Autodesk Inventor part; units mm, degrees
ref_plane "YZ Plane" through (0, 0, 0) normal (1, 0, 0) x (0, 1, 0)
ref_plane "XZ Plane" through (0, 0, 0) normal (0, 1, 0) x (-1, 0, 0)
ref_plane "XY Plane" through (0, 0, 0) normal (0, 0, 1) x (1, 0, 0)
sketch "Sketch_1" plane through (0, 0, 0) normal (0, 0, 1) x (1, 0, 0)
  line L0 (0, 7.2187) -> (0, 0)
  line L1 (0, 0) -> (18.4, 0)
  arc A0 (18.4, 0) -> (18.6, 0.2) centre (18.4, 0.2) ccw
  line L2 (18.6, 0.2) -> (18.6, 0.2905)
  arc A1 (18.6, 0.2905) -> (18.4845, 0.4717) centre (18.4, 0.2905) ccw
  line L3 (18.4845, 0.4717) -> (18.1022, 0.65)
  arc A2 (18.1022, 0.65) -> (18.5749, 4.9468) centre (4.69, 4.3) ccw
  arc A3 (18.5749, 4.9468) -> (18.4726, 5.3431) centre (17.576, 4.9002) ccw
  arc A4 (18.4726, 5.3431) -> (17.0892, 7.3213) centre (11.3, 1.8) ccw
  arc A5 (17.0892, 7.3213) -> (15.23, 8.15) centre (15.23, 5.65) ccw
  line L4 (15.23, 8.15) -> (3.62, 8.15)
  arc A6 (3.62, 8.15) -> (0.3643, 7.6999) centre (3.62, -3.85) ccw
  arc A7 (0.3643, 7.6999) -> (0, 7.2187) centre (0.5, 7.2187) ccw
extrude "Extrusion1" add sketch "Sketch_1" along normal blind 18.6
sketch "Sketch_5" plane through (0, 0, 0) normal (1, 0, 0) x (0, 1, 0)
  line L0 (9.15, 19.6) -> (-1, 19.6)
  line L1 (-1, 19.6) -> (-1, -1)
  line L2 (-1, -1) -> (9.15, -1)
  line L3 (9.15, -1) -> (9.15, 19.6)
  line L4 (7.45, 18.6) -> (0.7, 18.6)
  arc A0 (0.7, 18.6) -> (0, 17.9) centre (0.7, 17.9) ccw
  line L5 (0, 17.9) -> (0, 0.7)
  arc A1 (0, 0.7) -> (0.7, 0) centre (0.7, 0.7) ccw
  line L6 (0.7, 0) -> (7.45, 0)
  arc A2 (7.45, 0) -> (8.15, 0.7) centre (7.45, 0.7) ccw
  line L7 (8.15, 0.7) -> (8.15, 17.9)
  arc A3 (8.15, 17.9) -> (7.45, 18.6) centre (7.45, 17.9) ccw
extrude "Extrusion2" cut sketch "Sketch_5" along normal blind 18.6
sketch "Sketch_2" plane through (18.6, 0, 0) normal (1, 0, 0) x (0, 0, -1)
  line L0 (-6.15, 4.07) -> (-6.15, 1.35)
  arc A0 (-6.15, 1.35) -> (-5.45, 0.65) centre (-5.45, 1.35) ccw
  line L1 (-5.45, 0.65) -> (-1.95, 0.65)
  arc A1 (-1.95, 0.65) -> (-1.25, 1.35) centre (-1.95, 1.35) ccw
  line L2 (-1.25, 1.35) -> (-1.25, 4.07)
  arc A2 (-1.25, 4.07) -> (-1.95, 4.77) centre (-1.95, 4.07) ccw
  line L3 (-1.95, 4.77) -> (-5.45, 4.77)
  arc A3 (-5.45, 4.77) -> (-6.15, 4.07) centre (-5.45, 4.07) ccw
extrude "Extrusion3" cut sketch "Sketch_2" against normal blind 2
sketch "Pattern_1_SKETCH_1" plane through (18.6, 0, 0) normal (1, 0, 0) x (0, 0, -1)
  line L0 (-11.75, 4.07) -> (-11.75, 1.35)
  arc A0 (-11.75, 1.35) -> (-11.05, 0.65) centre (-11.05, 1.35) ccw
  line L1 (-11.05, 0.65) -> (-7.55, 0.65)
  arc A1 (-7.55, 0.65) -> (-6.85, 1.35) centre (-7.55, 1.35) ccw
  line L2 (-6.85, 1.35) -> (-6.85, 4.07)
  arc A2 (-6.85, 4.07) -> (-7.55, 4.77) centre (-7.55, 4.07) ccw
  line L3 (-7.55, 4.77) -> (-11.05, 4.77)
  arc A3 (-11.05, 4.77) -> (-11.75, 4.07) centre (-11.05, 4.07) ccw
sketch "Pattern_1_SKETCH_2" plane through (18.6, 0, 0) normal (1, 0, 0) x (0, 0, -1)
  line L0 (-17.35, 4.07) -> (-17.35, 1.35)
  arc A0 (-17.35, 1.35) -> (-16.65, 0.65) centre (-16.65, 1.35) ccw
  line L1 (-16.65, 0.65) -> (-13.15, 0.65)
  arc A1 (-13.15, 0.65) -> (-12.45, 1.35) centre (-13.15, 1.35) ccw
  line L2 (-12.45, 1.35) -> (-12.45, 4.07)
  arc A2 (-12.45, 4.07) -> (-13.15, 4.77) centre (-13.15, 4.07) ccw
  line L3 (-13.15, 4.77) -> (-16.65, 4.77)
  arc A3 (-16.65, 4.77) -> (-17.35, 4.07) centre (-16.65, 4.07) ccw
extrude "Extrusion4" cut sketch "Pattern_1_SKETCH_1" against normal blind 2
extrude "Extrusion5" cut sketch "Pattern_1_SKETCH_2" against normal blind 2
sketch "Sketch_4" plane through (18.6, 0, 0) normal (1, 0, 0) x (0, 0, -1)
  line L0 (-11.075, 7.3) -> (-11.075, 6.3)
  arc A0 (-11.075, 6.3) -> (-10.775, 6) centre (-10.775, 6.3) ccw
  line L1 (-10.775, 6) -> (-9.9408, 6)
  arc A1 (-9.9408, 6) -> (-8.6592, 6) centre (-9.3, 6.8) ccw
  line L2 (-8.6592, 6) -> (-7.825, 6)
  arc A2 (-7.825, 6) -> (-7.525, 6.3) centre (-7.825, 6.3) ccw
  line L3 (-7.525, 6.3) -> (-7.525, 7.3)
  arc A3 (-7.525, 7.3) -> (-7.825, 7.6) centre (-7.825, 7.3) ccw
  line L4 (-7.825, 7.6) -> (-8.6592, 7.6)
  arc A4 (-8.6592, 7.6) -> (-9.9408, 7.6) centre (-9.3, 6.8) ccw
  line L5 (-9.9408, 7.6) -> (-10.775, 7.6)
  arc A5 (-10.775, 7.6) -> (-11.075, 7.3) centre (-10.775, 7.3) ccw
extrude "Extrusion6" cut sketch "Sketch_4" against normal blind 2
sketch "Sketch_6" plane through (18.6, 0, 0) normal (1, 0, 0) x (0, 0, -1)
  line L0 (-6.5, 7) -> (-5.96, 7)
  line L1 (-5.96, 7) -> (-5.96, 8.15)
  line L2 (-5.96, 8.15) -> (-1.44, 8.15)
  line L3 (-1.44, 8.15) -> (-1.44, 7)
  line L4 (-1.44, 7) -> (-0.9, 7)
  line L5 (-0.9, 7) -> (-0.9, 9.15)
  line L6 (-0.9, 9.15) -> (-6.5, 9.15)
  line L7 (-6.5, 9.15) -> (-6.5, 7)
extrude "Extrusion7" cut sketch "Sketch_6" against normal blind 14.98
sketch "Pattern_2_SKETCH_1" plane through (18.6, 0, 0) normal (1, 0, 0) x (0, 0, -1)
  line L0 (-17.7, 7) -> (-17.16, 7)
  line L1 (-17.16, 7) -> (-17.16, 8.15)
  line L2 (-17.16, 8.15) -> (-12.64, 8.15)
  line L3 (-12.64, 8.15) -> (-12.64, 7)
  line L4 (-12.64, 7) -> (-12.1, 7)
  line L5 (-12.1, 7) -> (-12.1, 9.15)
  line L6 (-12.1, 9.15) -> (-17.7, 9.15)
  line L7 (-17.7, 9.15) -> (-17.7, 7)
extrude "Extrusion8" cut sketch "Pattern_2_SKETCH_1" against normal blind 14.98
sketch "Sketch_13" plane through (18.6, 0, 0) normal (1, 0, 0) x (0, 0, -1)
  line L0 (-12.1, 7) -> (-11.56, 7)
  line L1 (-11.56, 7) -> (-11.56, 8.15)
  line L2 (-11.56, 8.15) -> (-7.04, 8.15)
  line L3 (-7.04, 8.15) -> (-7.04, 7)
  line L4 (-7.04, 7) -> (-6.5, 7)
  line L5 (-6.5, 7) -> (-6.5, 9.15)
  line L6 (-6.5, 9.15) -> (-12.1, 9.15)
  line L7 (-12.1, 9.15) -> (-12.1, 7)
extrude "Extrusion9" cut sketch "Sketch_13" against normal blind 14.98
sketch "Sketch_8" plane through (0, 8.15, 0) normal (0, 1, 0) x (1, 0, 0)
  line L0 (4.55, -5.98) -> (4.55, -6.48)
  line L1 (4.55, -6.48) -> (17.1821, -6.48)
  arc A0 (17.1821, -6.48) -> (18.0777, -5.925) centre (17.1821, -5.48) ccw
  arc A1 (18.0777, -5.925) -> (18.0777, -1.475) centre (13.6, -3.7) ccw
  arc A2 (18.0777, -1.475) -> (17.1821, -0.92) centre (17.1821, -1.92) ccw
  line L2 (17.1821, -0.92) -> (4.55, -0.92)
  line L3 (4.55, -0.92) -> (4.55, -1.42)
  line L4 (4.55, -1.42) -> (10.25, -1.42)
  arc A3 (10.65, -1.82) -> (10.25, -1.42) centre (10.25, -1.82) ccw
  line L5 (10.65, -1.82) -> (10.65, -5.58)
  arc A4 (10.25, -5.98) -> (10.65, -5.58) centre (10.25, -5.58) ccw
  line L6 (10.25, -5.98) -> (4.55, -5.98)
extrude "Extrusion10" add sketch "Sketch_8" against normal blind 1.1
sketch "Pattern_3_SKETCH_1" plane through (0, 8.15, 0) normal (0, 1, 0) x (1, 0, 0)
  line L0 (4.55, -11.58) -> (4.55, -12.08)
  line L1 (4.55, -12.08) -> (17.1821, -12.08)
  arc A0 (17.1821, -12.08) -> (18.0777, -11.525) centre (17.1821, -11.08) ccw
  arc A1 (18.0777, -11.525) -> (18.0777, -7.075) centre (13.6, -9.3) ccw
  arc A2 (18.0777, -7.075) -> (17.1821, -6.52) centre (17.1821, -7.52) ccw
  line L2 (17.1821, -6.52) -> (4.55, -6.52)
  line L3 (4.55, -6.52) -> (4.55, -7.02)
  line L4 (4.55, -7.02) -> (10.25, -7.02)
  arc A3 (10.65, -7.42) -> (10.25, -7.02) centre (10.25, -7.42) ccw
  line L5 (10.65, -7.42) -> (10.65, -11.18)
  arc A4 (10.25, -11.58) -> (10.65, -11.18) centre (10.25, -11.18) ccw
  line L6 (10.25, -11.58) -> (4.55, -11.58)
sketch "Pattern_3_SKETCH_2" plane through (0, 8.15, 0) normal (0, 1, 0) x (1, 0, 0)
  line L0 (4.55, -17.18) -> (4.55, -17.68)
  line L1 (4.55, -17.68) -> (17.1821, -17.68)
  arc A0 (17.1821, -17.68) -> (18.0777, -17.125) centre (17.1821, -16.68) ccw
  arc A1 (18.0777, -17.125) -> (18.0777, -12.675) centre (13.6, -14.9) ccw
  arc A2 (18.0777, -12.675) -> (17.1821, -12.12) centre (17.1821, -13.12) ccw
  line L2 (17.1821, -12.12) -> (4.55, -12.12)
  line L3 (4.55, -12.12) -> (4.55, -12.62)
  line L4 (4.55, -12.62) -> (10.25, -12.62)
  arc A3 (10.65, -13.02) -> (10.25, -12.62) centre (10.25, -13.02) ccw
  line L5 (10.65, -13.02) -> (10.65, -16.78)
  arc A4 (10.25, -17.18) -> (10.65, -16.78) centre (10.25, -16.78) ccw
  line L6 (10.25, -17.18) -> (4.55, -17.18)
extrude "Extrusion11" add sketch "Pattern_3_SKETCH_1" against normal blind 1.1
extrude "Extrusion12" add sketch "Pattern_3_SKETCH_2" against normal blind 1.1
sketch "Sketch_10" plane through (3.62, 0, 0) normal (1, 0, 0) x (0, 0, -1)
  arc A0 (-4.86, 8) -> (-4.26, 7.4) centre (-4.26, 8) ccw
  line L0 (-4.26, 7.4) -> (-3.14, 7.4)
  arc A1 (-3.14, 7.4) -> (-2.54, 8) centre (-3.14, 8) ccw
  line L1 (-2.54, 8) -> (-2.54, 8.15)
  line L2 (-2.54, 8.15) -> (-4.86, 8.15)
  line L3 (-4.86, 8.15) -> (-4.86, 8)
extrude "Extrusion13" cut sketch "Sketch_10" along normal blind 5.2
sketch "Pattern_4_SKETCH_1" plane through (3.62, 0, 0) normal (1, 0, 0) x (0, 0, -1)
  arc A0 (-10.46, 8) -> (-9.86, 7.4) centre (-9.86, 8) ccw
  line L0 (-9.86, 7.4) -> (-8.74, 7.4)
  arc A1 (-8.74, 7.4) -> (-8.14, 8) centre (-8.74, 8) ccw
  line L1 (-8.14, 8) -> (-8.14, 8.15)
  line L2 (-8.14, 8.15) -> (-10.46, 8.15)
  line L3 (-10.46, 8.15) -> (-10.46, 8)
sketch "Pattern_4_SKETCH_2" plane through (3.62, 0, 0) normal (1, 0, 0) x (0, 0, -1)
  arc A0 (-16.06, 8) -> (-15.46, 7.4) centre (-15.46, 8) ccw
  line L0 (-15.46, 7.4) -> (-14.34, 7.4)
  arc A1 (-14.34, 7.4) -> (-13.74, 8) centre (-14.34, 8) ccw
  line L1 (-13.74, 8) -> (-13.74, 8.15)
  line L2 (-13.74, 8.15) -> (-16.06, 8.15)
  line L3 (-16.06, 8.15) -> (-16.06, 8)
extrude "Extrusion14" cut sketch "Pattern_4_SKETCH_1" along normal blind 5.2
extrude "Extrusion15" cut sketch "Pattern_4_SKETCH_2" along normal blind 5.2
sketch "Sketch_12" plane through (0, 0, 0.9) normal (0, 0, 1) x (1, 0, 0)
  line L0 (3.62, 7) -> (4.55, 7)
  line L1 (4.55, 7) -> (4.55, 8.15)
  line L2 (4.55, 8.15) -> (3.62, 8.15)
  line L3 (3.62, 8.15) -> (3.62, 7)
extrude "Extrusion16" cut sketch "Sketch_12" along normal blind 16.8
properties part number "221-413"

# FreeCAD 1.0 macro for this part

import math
import FreeCAD as App
import Part
import Sketcher


def add_polygon(sketch, points):
    """Adds a closed chain of lines whose ends are joined by coincident constraints."""
    first, n = sketch.GeometryCount, len(points)
    for a, b in zip(points, points[1:] + points[:1]):
        sketch.addGeometry(Part.LineSegment(App.Vector(*a, 0), App.Vector(*b, 0)), False)
    for i in range(n):
        sketch.addConstraint(Sketcher.Constraint("Coincident", first + i, 2, first + (i + 1) % n, 1))

doc = App.newDocument("Part")
body = doc.addObject("PartDesign::Body", "Body")

sketch1 = body.newObject("Sketcher::SketchObject", "Sketch")
sketch1.AttachmentSupport = (doc.getObject("XY_Plane"), [""])
sketch1.MapMode = "FlatFace"
sketch1.addGeometry([
    Part.ArcOfCircle(Part.Circle(App.Vector(0.5, 7.2187, 0), App.Vector(0, 0, 1), 0.499968), math.radians(105.748628), math.radians(180)),
    Part.LineSegment(App.Vector(0, 7.2187, 0), App.Vector(0, 0, 0)),
    Part.LineSegment(App.Vector(0, 0, 0), App.Vector(18.4, 0, 0)),
    Part.ArcOfCircle(Part.Circle(App.Vector(18.4, 0.2, 0), App.Vector(0, 0, 1), 0.2), math.radians(-90), math.radians(0)),
    Part.LineSegment(App.Vector(18.6, 0.2, 0), App.Vector(18.6, 0.2905, 0)),
    Part.ArcOfCircle(Part.Circle(App.Vector(18.4, 0.2905, 0), App.Vector(0, 0, 1), 0.2), math.radians(0), math.radians(64.998688)),
    Part.LineSegment(App.Vector(18.4845, 0.4717, 0), App.Vector(18.1022, 0.65, 0)),
    Part.ArcOfCircle(Part.Circle(App.Vector(4.691181, 4.299776, 0), App.Vector(0, 0, 1), 13.898787), math.radians(-15.224197), math.radians(2.66823)),
    Part.ArcOfCircle(Part.Circle(App.Vector(17.576, 4.9002, 0), App.Vector(0, 0, 1), 0.999986), math.radians(2.670987), math.radians(26.288324)),
    Part.ArcOfCircle(Part.Circle(App.Vector(11.3, 1.8, 0), App.Vector(0, 0, 1), 7.999984), math.radians(26.288316), math.radians(43.643148)),
    Part.ArcOfCircle(Part.Circle(App.Vector(15.23, 5.65, 0), App.Vector(0, 0, 1), 2.499974), math.radians(41.953483), math.radians(90)),
    Part.LineSegment(App.Vector(15.23, 8.15, 0), App.Vector(3.62, 8.15, 0)),
    Part.ArcOfCircle(Part.Circle(App.Vector(3.62, -3.85, 0), App.Vector(0, 0, 1), 12), math.radians(90), math.radians(105.742148)),
], False)
sketch1.addConstraint([
    Sketcher.Constraint("Coincident", 0, 2, 1, 1),
    Sketcher.Constraint("Coincident", 1, 2, 2, 1),
    Sketcher.Constraint("Coincident", 2, 2, 3, 1),
    Sketcher.Constraint("Coincident", 3, 2, 4, 1),
    Sketcher.Constraint("Coincident", 4, 2, 5, 1),
    Sketcher.Constraint("Coincident", 5, 2, 6, 1),
    Sketcher.Constraint("Coincident", 6, 2, 7, 1),
    Sketcher.Constraint("Coincident", 7, 2, 8, 1),
    Sketcher.Constraint("Coincident", 8, 2, 9, 1),
    Sketcher.Constraint("Coincident", 9, 2, 10, 1),
    Sketcher.Constraint("Coincident", 10, 2, 11, 1),
    Sketcher.Constraint("Coincident", 11, 2, 12, 1),
    Sketcher.Constraint("Coincident", 12, 2, 0, 1),
    Sketcher.Constraint("Vertical", 1),
    Sketcher.Constraint("Horizontal", 2),
    Sketcher.Constraint("Vertical", 4),
    Sketcher.Constraint("Horizontal", 11),
    Sketcher.Constraint("Coincident", 1, 2, -1, 1),
    Sketcher.Constraint("Radius", 8, 1.0),
    Sketcher.Constraint("Radius", 9, 8.0),
    Sketcher.Constraint("Radius", 12, 12.0),
    Sketcher.Constraint("Radius", 0, 0.5),
    Sketcher.Constraint("Radius", 3, 0.2),
    Sketcher.Constraint("Radius", 5, 0.2),
    Sketcher.Constraint("Radius", 10, 2.5),
    Sketcher.Constraint("DistanceX", 2, 1, 2, 2, 18.4),
    Sketcher.Constraint("DistanceX", 11, 2, 11, 1, 11.61),
    Sketcher.Constraint("DistanceX", -1, 1, 3, 3, 18.4),
    Sketcher.Constraint("DistanceX", -1, 1, 9, 3, 11.3),
    Sketcher.Constraint("DistanceY", -1, 1, 9, 3, 1.8),
    Sketcher.Constraint("DistanceY", -1, 1, 3, 2, 0.2),
    Sketcher.Constraint("DistanceY", -1, 1, 12, 2, 7.7),
    Sketcher.Constraint("Radius", 7, 13.8988),
    Sketcher.Constraint("DistanceX", -1, 1, 10, 3, 15.23),
    Sketcher.Constraint("DistanceY", -1, 1, 10, 3, 5.65),
    Sketcher.Constraint("DistanceX", -1, 1, 12, 3, 3.62),
    Sketcher.Constraint("DistanceY", -1, 1, 6, 2, 0.65),
    Sketcher.Constraint("DistanceX", -1, 1, 10, 2, 15.23),
    Sketcher.Constraint("DistanceY", 1, 2, 1, 1, 7.2187),
    Sketcher.Constraint("DistanceY", 4, 1, 4, 2, 0.0905),
    Sketcher.Constraint("DistanceX", -1, 1, 8, 3, 17.576),
    Sketcher.Constraint("DistanceX", -1, 1, 7, 2, 18.575),
    Sketcher.Constraint("DistanceY", -1, 1, 8, 2, 5.343),
    Sketcher.Constraint("DistanceY", 7, 3, 0, 3, 2.919),
    Sketcher.Constraint("DistanceY", 5, 2, 7, 2, 4.475),
    Sketcher.Constraint("DistanceX", 8, 2, 5, 2, 0.012),
])
pad1 = body.newObject("PartDesign::Pad", "Pad")
pad1.Profile = sketch1
pad1.Length = 18.6

sketch2 = body.newObject("Sketcher::SketchObject", "Sketch001")
sketch2.AttachmentSupport = (doc.getObject("YZ_Plane"), [""])
sketch2.MapMode = "FlatFace"
add_polygon(sketch2, [(9.2, -1), (9.2, 19.6), (-1, 19.6), (-1, -1)])
sketch2.addGeometry(Part.LineSegment(App.Vector(0.7, 18.6, 0), App.Vector(7.5, 18.6, 0)), False)
sketch2.addGeometry(Part.ArcOfCircle(Part.Circle(App.Vector(7.5, 17.9, 0), App.Vector(0, 0, 1), 0.7), math.radians(0), math.radians(90)), False)
sketch2.addGeometry(Part.LineSegment(App.Vector(8.2, 17.9, 0), App.Vector(8.2, 0.7, 0)), False)
sketch2.addGeometry(Part.ArcOfCircle(Part.Circle(App.Vector(7.5, 0.7, 0), App.Vector(0, 0, 1), 0.7), math.radians(-90), math.radians(0)), False)
sketch2.addGeometry(Part.LineSegment(App.Vector(7.5, 0, 0), App.Vector(0.7, 0, 0)), False)
sketch2.addGeometry(Part.ArcOfCircle(Part.Circle(App.Vector(0.7, 0.7, 0), App.Vector(0, 0, 1), 0.7), math.radians(180), math.radians(270)), False)
sketch2.addGeometry(Part.LineSegment(App.Vector(0, 0.7, 0), App.Vector(0, 17.9, 0)), False)
sketch2.addGeometry(Part.ArcOfCircle(Part.Circle(App.Vector(0.7, 17.9, 0), App.Vector(0, 0, 1), 0.7), math.radians(90), math.radians(180)), False)
sketch2.addConstraint([
    Sketcher.Constraint("Tangent", 4, 2, 5, 2),
    Sketcher.Constraint("Tangent", 5, 1, 6, 1),
    Sketcher.Constraint("Tangent", 6, 2, 7, 2),
    Sketcher.Constraint("Tangent", 7, 1, 8, 1),
    Sketcher.Constraint("Tangent", 8, 2, 9, 2),
    Sketcher.Constraint("Tangent", 9, 1, 10, 1),
    Sketcher.Constraint("Tangent", 10, 2, 11, 2),
    Sketcher.Constraint("Tangent", 11, 1, 4, 1),
    Sketcher.Constraint("Vertical", 0),
    Sketcher.Constraint("Horizontal", 1),
    Sketcher.Constraint("Vertical", 2),
    Sketcher.Constraint("Horizontal", 3),
    Sketcher.Constraint("Horizontal", 4),
    Sketcher.Constraint("Vertical", 6),
    Sketcher.Constraint("Horizontal", 8),
    Sketcher.Constraint("Vertical", 10),
    Sketcher.Constraint("Equal", 5, 7),
    Sketcher.Constraint("Equal", 7, 9),
    Sketcher.Constraint("Equal", 9, 11),
    Sketcher.Constraint("PointOnObject", 7, 1, -1),
    Sketcher.Constraint("PointOnObject", 9, 1, -2),
    Sketcher.Constraint("Radius", 5, 0.7),
    Sketcher.Constraint("DistanceY", 0, 1, 0, 2, 20.6),
    Sketcher.Constraint("DistanceY", 6, 2, 6, 1, 17.2),
    Sketcher.Constraint("DistanceX", 1, 2, -1, 1, 1.0),
    Sketcher.Constraint("DistanceY", 2, 2, -1, 1, 1.0),
    Sketcher.Constraint("DistanceX", 5, 1, 0, 2, 1.0),
    Sketcher.Constraint("DistanceX", 1, 2, 1, 1, 10.15),
])
pocket1 = body.newObject("PartDesign::Pocket", "Pocket")
pocket1.Profile = sketch2
pocket1.Length = 18.6
pocket1.Reversed = True

sketch3 = body.newObject("Sketcher::SketchObject", "Sketch002")
sketch3.AttachmentSupport = (doc.getObject("YZ_Plane"), [""])
sketch3.MapMode = "FlatFace"
sketch3.AttachmentOffset = App.Placement(App.Vector(0, 0, 18.6), App.Rotation())
sketch3.addGeometry([
    Part.ArcOfCircle(Part.Circle(App.Vector(4.1, 5.5, 0), App.Vector(0, 0, 1), 0.7), math.radians(0), math.radians(90)),
    Part.LineSegment(App.Vector(4.1, 6.2, 0), App.Vector(1.4, 6.2, 0)),
    Part.ArcOfCircle(Part.Circle(App.Vector(1.4, 5.5, 0), App.Vector(0, 0, 1), 0.7), math.radians(90), math.radians(180)),
    Part.LineSegment(App.Vector(0.7, 5.5, 0), App.Vector(0.7, 1.9, 0)),
    Part.ArcOfCircle(Part.Circle(App.Vector(1.4, 1.9, 0), App.Vector(0, 0, 1), 0.7), math.radians(180), math.radians(270)),
    Part.LineSegment(App.Vector(1.4, 1.2, 0), App.Vector(4.1, 1.2, 0)),
    Part.ArcOfCircle(Part.Circle(App.Vector(4.1, 1.9, 0), App.Vector(0, 0, 1), 0.7), math.radians(-90), math.radians(0)),
    Part.LineSegment(App.Vector(4.8, 1.9, 0), App.Vector(4.8, 5.5, 0)),
], False)
sketch3.addConstraint([
    Sketcher.Constraint("Tangent", 0, 2, 1, 1),
    Sketcher.Constraint("Tangent", 1, 2, 2, 1),
    Sketcher.Constraint("Tangent", 2, 2, 3, 1),
    Sketcher.Constraint("Tangent", 3, 2, 4, 1),
    Sketcher.Constraint("Tangent", 4, 2, 5, 1),
    Sketcher.Constraint("Tangent", 5, 2, 6, 1),
    Sketcher.Constraint("Tangent", 6, 2, 7, 1),
    Sketcher.Constraint("Tangent", 7, 2, 0, 1),
    Sketcher.Constraint("Horizontal", 1),
    Sketcher.Constraint("Vertical", 3),
    Sketcher.Constraint("Horizontal", 5),
    Sketcher.Constraint("Vertical", 7),
    Sketcher.Constraint("Equal", 0, 2),
    Sketcher.Constraint("Equal", 2, 4),
    Sketcher.Constraint("Equal", 4, 6),
    Sketcher.Constraint("Radius", 0, 0.7),
    Sketcher.Constraint("DistanceY", 3, 2, 3, 1, 3.5),
    Sketcher.Constraint("DistanceX", 1, 2, 1, 1, 2.72),
    Sketcher.Constraint("DistanceX", -1, 1, 0, 3, 4.07),
    Sketcher.Constraint("DistanceY", -1, 1, 0, 3, 5.45),
])
pocket2 = body.newObject("PartDesign::Pocket", "Pocket001")
pocket2.Profile = sketch3
pocket2.Length = 2

sketch4 = body.newObject("Sketcher::SketchObject", "Sketch003")
sketch4.AttachmentSupport = (doc.getObject("YZ_Plane"), [""])
sketch4.MapMode = "FlatFace"
sketch4.AttachmentOffset = App.Placement(App.Vector(0, 0, 18.6), App.Rotation())
sketch4.addGeometry([
    Part.ArcOfCircle(Part.Circle(App.Vector(4.1, 11.1, 0), App.Vector(0, 0, 1), 0.7), math.radians(0), math.radians(90)),
    Part.LineSegment(App.Vector(4.1, 11.8, 0), App.Vector(1.4, 11.8, 0)),
    Part.ArcOfCircle(Part.Circle(App.Vector(1.4, 11.1, 0), App.Vector(0, 0, 1), 0.7), math.radians(90), math.radians(180)),
    Part.LineSegment(App.Vector(0.7, 11.1, 0), App.Vector(0.7, 7.5, 0)),
    Part.ArcOfCircle(Part.Circle(App.Vector(1.4, 7.5, 0), App.Vector(0, 0, 1), 0.7), math.radians(180), math.radians(270)),
    Part.LineSegment(App.Vector(1.4, 6.8, 0), App.Vector(4.1, 6.8, 0)),
    Part.ArcOfCircle(Part.Circle(App.Vector(4.1, 7.5, 0), App.Vector(0, 0, 1), 0.7), math.radians(-90), math.radians(0)),
    Part.LineSegment(App.Vector(4.8, 7.5, 0), App.Vector(4.8, 11.1, 0)),
], False)
sketch4.addConstraint([
    Sketcher.Constraint("Tangent", 0, 2, 1, 1),
    Sketcher.Constraint("Tangent", 1, 2, 2, 1),
    Sketcher.Constraint("Tangent", 2, 2, 3, 1),
    Sketcher.Constraint("Tangent", 3, 2, 4, 1),
    Sketcher.Constraint("Tangent", 4, 2, 5, 1),
    Sketcher.Constraint("Tangent", 5, 2, 6, 1),
    Sketcher.Constraint("Tangent", 6, 2, 7, 1),
    Sketcher.Constraint("Tangent", 7, 2, 0, 1),
    Sketcher.Constraint("Horizontal", 1),
    Sketcher.Constraint("Vertical", 3),
    Sketcher.Constraint("Horizontal", 5),
    Sketcher.Constraint("Vertical", 7),
    Sketcher.Constraint("Equal", 0, 2),
    Sketcher.Constraint("Equal", 2, 4),
    Sketcher.Constraint("Equal", 4, 6),
    Sketcher.Constraint("Radius", 0, 0.7),
    Sketcher.Constraint("DistanceY", 3, 2, 3, 1, 3.5),
    Sketcher.Constraint("DistanceX", 1, 2, 1, 1, 2.72),
    Sketcher.Constraint("DistanceX", -1, 1, 0, 3, 4.07),
    Sketcher.Constraint("DistanceY", -1, 1, 0, 3, 11.05),
])
pocket3 = body.newObject("PartDesign::Pocket", "Pocket002")
pocket3.Profile = sketch4
pocket3.Length = 2

sketch5 = body.newObject("Sketcher::SketchObject", "Sketch004")
sketch5.AttachmentSupport = (doc.getObject("YZ_Plane"), [""])
sketch5.MapMode = "FlatFace"
sketch5.AttachmentOffset = App.Placement(App.Vector(0, 0, 18.6), App.Rotation())
sketch5.addGeometry([
    Part.ArcOfCircle(Part.Circle(App.Vector(4.1, 16.6, 0), App.Vector(0, 0, 1), 0.7), math.radians(0), math.radians(90)),
    Part.LineSegment(App.Vector(4.1, 17.4, 0), App.Vector(1.4, 17.4, 0)),
    Part.ArcOfCircle(Part.Circle(App.Vector(1.4, 16.6, 0), App.Vector(0, 0, 1), 0.7), math.radians(90), math.radians(180)),
    Part.LineSegment(App.Vector(0.7, 16.6, 0), App.Vector(0.7, 13.2, 0)),
    Part.ArcOfCircle(Part.Circle(App.Vector(1.4, 13.2, 0), App.Vector(0, 0, 1), 0.7), math.radians(180), math.radians(270)),
    Part.LineSegment(App.Vector(1.4, 12.4, 0), App.Vector(4.1, 12.4, 0)),
    Part.ArcOfCircle(Part.Circle(App.Vector(4.1, 13.2, 0), App.Vector(0, 0, 1), 0.7), math.radians(-90), math.radians(0)),
    Part.LineSegment(App.Vector(4.8, 13.2, 0), App.Vector(4.8, 16.6, 0)),
], False)
sketch5.addConstraint([
    Sketcher.Constraint("Tangent", 0, 2, 1, 1),
    Sketcher.Constraint("Tangent", 1, 2, 2, 1),
    Sketcher.Constraint("Tangent", 2, 2, 3, 1),
    Sketcher.Constraint("Tangent", 3, 2, 4, 1),
    Sketcher.Constraint("Tangent", 4, 2, 5, 1),
    Sketcher.Constraint("Tangent", 5, 2, 6, 1),
    Sketcher.Constraint("Tangent", 6, 2, 7, 1),
    Sketcher.Constraint("Tangent", 7, 2, 0, 1),
    Sketcher.Constraint("Horizontal", 1),
    Sketcher.Constraint("Vertical", 3),
    Sketcher.Constraint("Horizontal", 5),
    Sketcher.Constraint("Vertical", 7),
    Sketcher.Constraint("Equal", 0, 2),
    Sketcher.Constraint("Equal", 2, 4),
    Sketcher.Constraint("Equal", 4, 6),
    Sketcher.Constraint("Radius", 0, 0.7),
    Sketcher.Constraint("DistanceY", 3, 2, 3, 1, 3.5),
    Sketcher.Constraint("DistanceX", 1, 2, 1, 1, 2.72),
    Sketcher.Constraint("DistanceX", -1, 1, 0, 3, 4.07),
    Sketcher.Constraint("DistanceY", -1, 1, 0, 3, 16.65),
])
pocket4 = body.newObject("PartDesign::Pocket", "Pocket003")
pocket4.Profile = sketch5
pocket4.Length = 2

sketch6 = body.newObject("Sketcher::SketchObject", "Sketch005")
sketch6.AttachmentSupport = (doc.getObject("YZ_Plane"), [""])
sketch6.MapMode = "FlatFace"
sketch6.AttachmentOffset = App.Placement(App.Vector(0, 0, 18.6), App.Rotation())
sketch6.addGeometry([
    Part.ArcOfCircle(Part.Circle(App.Vector(7.3, 10.78, 0), App.Vector(0, 0, 1), 0.3), math.radians(0), math.radians(90)),
    Part.LineSegment(App.Vector(7.3, 11.07, 0), App.Vector(6.3, 11.07, 0)),
    Part.ArcOfCircle(Part.Circle(App.Vector(6.3, 10.78, 0), App.Vector(0, 0, 1), 0.3), math.radians(90), math.radians(180)),
    Part.LineSegment(App.Vector(6, 10.78, 0), App.Vector(6, 9.94, 0)),
    Part.ArcOfCircle(Part.Circle(App.Vector(6.8, 9.3, 0), App.Vector(0, 0, 1), 1.02), math.radians(141), math.radians(219)),
    Part.LineSegment(App.Vector(6, 8.66, 0), App.Vector(6, 7.83, 0)),
    Part.ArcOfCircle(Part.Circle(App.Vector(6.3, 7.83, 0), App.Vector(0, 0, 1), 0.3), math.radians(180), math.radians(270)),
    Part.LineSegment(App.Vector(6.3, 7.53, 0), App.Vector(7.3, 7.53, 0)),
    Part.ArcOfCircle(Part.Circle(App.Vector(7.3, 7.83, 0), App.Vector(0, 0, 1), 0.3), math.radians(-90), math.radians(0)),
    Part.LineSegment(App.Vector(7.6, 7.83, 0), App.Vector(7.6, 8.66, 0)),
    Part.ArcOfCircle(Part.Circle(App.Vector(6.8, 9.3, 0), App.Vector(0, 0, 1), 1.02), math.radians(-39), math.radians(39)),
    Part.LineSegment(App.Vector(7.6, 9.94, 0), App.Vector(7.6, 10.78, 0)),
], False)
sketch6.addConstraint([
    Sketcher.Constraint("Tangent", 0, 2, 1, 1),
    Sketcher.Constraint("Tangent", 1, 2, 2, 1),
    Sketcher.Constraint("Tangent", 2, 2, 3, 1),
    Sketcher.Constraint("Coincident", 3, 2, 4, 1),
    Sketcher.Constraint("Coincident", 4, 2, 5, 1),
    Sketcher.Constraint("Tangent", 5, 2, 6, 1),
    Sketcher.Constraint("Tangent", 6, 2, 7, 1),
    Sketcher.Constraint("Tangent", 7, 2, 8, 1),
    Sketcher.Constraint("Tangent", 8, 2, 9, 1),
    Sketcher.Constraint("Coincident", 9, 2, 10, 1),
    Sketcher.Constraint("Coincident", 10, 2, 11, 1),
    Sketcher.Constraint("Tangent", 11, 2, 0, 1),
    Sketcher.Constraint("Horizontal", 1),
    Sketcher.Constraint("Vertical", 3),
    Sketcher.Constraint("Vertical", 5),
    Sketcher.Constraint("Horizontal", 7),
    Sketcher.Constraint("Vertical", 9),
    Sketcher.Constraint("Vertical", 11),
    Sketcher.Constraint("Coincident", 10, 3, 4, 3),
    Sketcher.Constraint("Equal", 0, 2),
    Sketcher.Constraint("Equal", 2, 6),
    Sketcher.Constraint("Equal", 6, 8),
    Sketcher.Constraint("Equal", 4, 10),
    Sketcher.Constraint("Horizontal", 4, 2, 9, 2),
    Sketcher.Constraint("Horizontal", 3, 2, 10, 2),
    Sketcher.Constraint("Vertical", 2, 3, 6, 3),
    Sketcher.Constraint("Equal", 3, 5),
    Sketcher.Constraint("Radius", 0, 0.3),
    Sketcher.Constraint("DistanceX", 1, 2, 1, 1, 1.0),
    Sketcher.Constraint("DistanceX", -1, 1, 2, 2, 6.0),
    Sketcher.Constraint("Radius", 4, 1.025),
    Sketcher.Constraint("DistanceY", -1, 1, 4, 3, 9.3),
    Sketcher.Constraint("DistanceY", 6, 3, 2, 3, 2.95),
])
pocket5 = body.newObject("PartDesign::Pocket", "Pocket004")
pocket5.Profile = sketch6
pocket5.Length = 2

sketch7 = body.newObject("Sketcher::SketchObject", "Sketch006")
sketch7.AttachmentSupport = (doc.getObject("YZ_Plane"), [""])
sketch7.MapMode = "FlatFace"
sketch7.AttachmentOffset = App.Placement(App.Vector(0, 0, 18.6), App.Rotation())
add_polygon(sketch7, [(9.2, 6.5), (7, 6.5), (7, 6), (8.2, 6), (8.2, 1.4), (7, 1.4), (7, 0.9), (9.2, 0.9)])
sketch7.addConstraint([
    Sketcher.Constraint("Horizontal", 0),
    Sketcher.Constraint("Vertical", 1),
    Sketcher.Constraint("Horizontal", 2),
    Sketcher.Constraint("Vertical", 3),
    Sketcher.Constraint("Horizontal", 4),
    Sketcher.Constraint("Vertical", 5),
    Sketcher.Constraint("Horizontal", 6),
    Sketcher.Constraint("Vertical", 7),
    Sketcher.Constraint("Vertical", 1, 2, 4, 2),
    Sketcher.Constraint("Equal", 1, 5),
    Sketcher.Constraint("DistanceY", 7, 1, 7, 2, 5.6),
    Sketcher.Constraint("DistanceX", -1, 1, 0, 2, 7.0),
    Sketcher.Constraint("DistanceX", 3, 2, 6, 2, 1.0),
    Sketcher.Constraint("DistanceX", 0, 2, 0, 1, 2.15),
    Sketcher.Constraint("DistanceY", 1, 2, 1, 1, 0.54),
    Sketcher.Constraint("DistanceY", -1, 1, 0, 2, 6.5),
])
pocket6 = body.newObject("PartDesign::Pocket", "Pocket005")
pocket6.Profile = sketch7
pocket6.Length = 14.98

sketch8 = body.newObject("Sketcher::SketchObject", "Sketch007")
sketch8.AttachmentSupport = (doc.getObject("YZ_Plane"), [""])
sketch8.MapMode = "FlatFace"
sketch8.AttachmentOffset = App.Placement(App.Vector(0, 0, 18.6), App.Rotation())
add_polygon(sketch8, [(9.2, 17.7), (7, 17.7), (7, 17.2), (8.2, 17.2), (8.2, 12.6), (7, 12.6), (7, 12.1), (9.2, 12.1)])
sketch8.addConstraint([
    Sketcher.Constraint("Horizontal", 0),
    Sketcher.Constraint("Vertical", 1),
    Sketcher.Constraint("Horizontal", 2),
    Sketcher.Constraint("Vertical", 3),
    Sketcher.Constraint("Horizontal", 4),
    Sketcher.Constraint("Vertical", 5),
    Sketcher.Constraint("Horizontal", 6),
    Sketcher.Constraint("Vertical", 7),
    Sketcher.Constraint("Vertical", 1, 2, 4, 2),
    Sketcher.Constraint("Equal", 1, 5),
    Sketcher.Constraint("DistanceY", 7, 1, 7, 2, 5.6),
    Sketcher.Constraint("DistanceX", -1, 1, 0, 2, 7.0),
    Sketcher.Constraint("DistanceX", 3, 2, 6, 2, 1.0),
    Sketcher.Constraint("DistanceX", 0, 2, 0, 1, 2.15),
    Sketcher.Constraint("DistanceY", 1, 2, 1, 1, 0.54),
    Sketcher.Constraint("DistanceY", -1, 1, 0, 2, 17.7),
])
pocket7 = body.newObject("PartDesign::Pocket", "Pocket006")
pocket7.Profile = sketch8
pocket7.Length = 14.98

sketch9 = body.newObject("Sketcher::SketchObject", "Sketch008")
sketch9.AttachmentSupport = (doc.getObject("YZ_Plane"), [""])
sketch9.MapMode = "FlatFace"
sketch9.AttachmentOffset = App.Placement(App.Vector(0, 0, 18.6), App.Rotation())
add_polygon(sketch9, [(9.2, 12.1), (7, 12.1), (7, 11.6), (8.2, 11.6), (8.2, 7), (7, 7), (7, 6.5), (9.2, 6.5)])
sketch9.addConstraint([
    Sketcher.Constraint("Horizontal", 0),
    Sketcher.Constraint("Vertical", 1),
    Sketcher.Constraint("Horizontal", 2),
    Sketcher.Constraint("Vertical", 3),
    Sketcher.Constraint("Horizontal", 4),
    Sketcher.Constraint("Vertical", 5),
    Sketcher.Constraint("Horizontal", 6),
    Sketcher.Constraint("Vertical", 7),
    Sketcher.Constraint("Vertical", 1, 2, 4, 2),
    Sketcher.Constraint("Equal", 1, 5),
    Sketcher.Constraint("DistanceY", 7, 1, 7, 2, 5.6),
    Sketcher.Constraint("DistanceX", -1, 1, 0, 2, 7.0),
    Sketcher.Constraint("DistanceX", 3, 2, 6, 2, 1.0),
    Sketcher.Constraint("DistanceX", 0, 2, 0, 1, 2.15),
    Sketcher.Constraint("DistanceY", 1, 2, 1, 1, 0.54),
    Sketcher.Constraint("DistanceY", -1, 1, 0, 2, 12.1),
])
pocket8 = body.newObject("PartDesign::Pocket", "Pocket007")
pocket8.Profile = sketch9
pocket8.Length = 14.98

sketch10 = body.newObject("Sketcher::SketchObject", "Sketch009")
sketch10.AttachmentSupport = (doc.getObject("XZ_Plane"), [""])
sketch10.MapMode = "FlatFace"
sketch10.AttachmentOffset = App.Placement(App.Vector(0, 0, -8.15), App.Rotation())
sketch10.addGeometry([
    Part.LineSegment(App.Vector(10.25, 5.98, 0), App.Vector(4.55, 5.98, 0)),
    Part.LineSegment(App.Vector(4.55, 5.98, 0), App.Vector(4.55, 6.48, 0)),
    Part.LineSegment(App.Vector(4.55, 6.48, 0), App.Vector(17.18, 6.48, 0)),
    Part.ArcOfCircle(Part.Circle(App.Vector(17.18, 5.48, 0), App.Vector(0, 0, 1), 1), math.radians(26), math.radians(90)),
    Part.ArcOfCircle(Part.Circle(App.Vector(13.6, 3.7, 0), App.Vector(0, 0, 1), 5), math.radians(-26), math.radians(26)),
    Part.ArcOfCircle(Part.Circle(App.Vector(17.18, 1.92, 0), App.Vector(0, 0, 1), 1), math.radians(-90), math.radians(-26)),
    Part.LineSegment(App.Vector(17.18, 0.92, 0), App.Vector(4.55, 0.92, 0)),
    Part.LineSegment(App.Vector(4.55, 0.92, 0), App.Vector(4.55, 1.42, 0)),
    Part.LineSegment(App.Vector(4.55, 1.42, 0), App.Vector(10.25, 1.42, 0)),
    Part.ArcOfCircle(Part.Circle(App.Vector(10.25, 1.82, 0), App.Vector(0, 0, 1), 0.4), math.radians(-90), math.radians(0)),
    Part.LineSegment(App.Vector(10.65, 1.82, 0), App.Vector(10.65, 5.58, 0)),
    Part.ArcOfCircle(Part.Circle(App.Vector(10.25, 5.58, 0), App.Vector(0, 0, 1), 0.4), math.radians(0), math.radians(90)),
], False)
sketch10.addConstraint([
    Sketcher.Constraint("Coincident", 0, 2, 1, 1),
    Sketcher.Constraint("Coincident", 1, 2, 2, 1),
    Sketcher.Constraint("Tangent", 2, 2, 3, 2),
    Sketcher.Constraint("Tangent", 3, 1, 4, 2),
    Sketcher.Constraint("Tangent", 4, 1, 5, 2),
    Sketcher.Constraint("Tangent", 5, 1, 6, 1),
    Sketcher.Constraint("Coincident", 6, 2, 7, 1),
    Sketcher.Constraint("Coincident", 7, 2, 8, 1),
    Sketcher.Constraint("Tangent", 8, 2, 9, 1),
    Sketcher.Constraint("Tangent", 9, 2, 10, 1),
    Sketcher.Constraint("Tangent", 10, 2, 11, 1),
    Sketcher.Constraint("Tangent", 11, 2, 0, 1),
    Sketcher.Constraint("Horizontal", 0),
    Sketcher.Constraint("Vertical", 1),
    Sketcher.Constraint("Horizontal", 2),
    Sketcher.Constraint("Horizontal", 6),
    Sketcher.Constraint("Vertical", 7),
    Sketcher.Constraint("Horizontal", 8),
    Sketcher.Constraint("Vertical", 10),
    Sketcher.Constraint("Equal", 3, 5),
    Sketcher.Constraint("Equal", 9, 11),
    Sketcher.Constraint("Vertical", 3, 3, 5, 3),
    Sketcher.Constraint("Vertical", 1, 2, 6, 2),
    Sketcher.Constraint("Equal", 1, 7),
    Sketcher.Constraint("Radius", 3, 1.0),
    Sketcher.Constraint("Radius", 4, 5.0),
    Sketcher.Constraint("Radius", 9, 0.4),
    Sketcher.Constraint("DistanceX", 0, 2, 0, 1, 5.7),
    Sketcher.Constraint("DistanceY", 1, 1, 1, 2, 0.5),
    Sketcher.Constraint("DistanceY", 10, 1, 10, 2, 3.76),
    Sketcher.Constraint("DistanceX", -1, 1, 4, 3, 13.6),
    Sketcher.Constraint("DistanceY", -1, 1, 4, 3, 3.7),
    Sketcher.Constraint("DistanceX", 2, 1, 2, 2, 12.632),
])
pad2 = body.newObject("PartDesign::Pad", "Pad001")
pad2.Profile = sketch10
pad2.Length = 1.1

sketch11 = body.newObject("Sketcher::SketchObject", "Sketch010")
sketch11.AttachmentSupport = (doc.getObject("XZ_Plane"), [""])
sketch11.MapMode = "FlatFace"
sketch11.AttachmentOffset = App.Placement(App.Vector(0, 0, -8.15), App.Rotation())
sketch11.addGeometry([
    Part.LineSegment(App.Vector(10.25, 11.58, 0), App.Vector(4.55, 11.58, 0)),
    Part.LineSegment(App.Vector(4.55, 11.58, 0), App.Vector(4.55, 12.08, 0)),
    Part.LineSegment(App.Vector(4.55, 12.08, 0), App.Vector(17.18, 12.08, 0)),
    Part.ArcOfCircle(Part.Circle(App.Vector(17.18, 11.08, 0), App.Vector(0, 0, 1), 1), math.radians(26), math.radians(90)),
    Part.ArcOfCircle(Part.Circle(App.Vector(13.6, 9.3, 0), App.Vector(0, 0, 1), 5), math.radians(-26), math.radians(26)),
    Part.ArcOfCircle(Part.Circle(App.Vector(17.18, 7.52, 0), App.Vector(0, 0, 1), 1), math.radians(-90), math.radians(-26)),
    Part.LineSegment(App.Vector(17.18, 6.52, 0), App.Vector(4.55, 6.52, 0)),
    Part.LineSegment(App.Vector(4.55, 6.52, 0), App.Vector(4.55, 7.02, 0)),
    Part.LineSegment(App.Vector(4.55, 7.02, 0), App.Vector(10.25, 7.02, 0)),
    Part.ArcOfCircle(Part.Circle(App.Vector(10.25, 7.42, 0), App.Vector(0, 0, 1), 0.4), math.radians(-90), math.radians(0)),
    Part.LineSegment(App.Vector(10.65, 7.42, 0), App.Vector(10.65, 11.18, 0)),
    Part.ArcOfCircle(Part.Circle(App.Vector(10.25, 11.18, 0), App.Vector(0, 0, 1), 0.4), math.radians(0), math.radians(90)),
], False)
sketch11.addConstraint([
    Sketcher.Constraint("Coincident", 0, 2, 1, 1),
    Sketcher.Constraint("Coincident", 1, 2, 2, 1),
    Sketcher.Constraint("Tangent", 2, 2, 3, 2),
    Sketcher.Constraint("Tangent", 3, 1, 4, 2),
    Sketcher.Constraint("Tangent", 4, 1, 5, 2),
    Sketcher.Constraint("Tangent", 5, 1, 6, 1),
    Sketcher.Constraint("Coincident", 6, 2, 7, 1),
    Sketcher.Constraint("Coincident", 7, 2, 8, 1),
    Sketcher.Constraint("Tangent", 8, 2, 9, 1),
    Sketcher.Constraint("Tangent", 9, 2, 10, 1),
    Sketcher.Constraint("Tangent", 10, 2, 11, 1),
    Sketcher.Constraint("Tangent", 11, 2, 0, 1),
    Sketcher.Constraint("Horizontal", 0),
    Sketcher.Constraint("Vertical", 1),
    Sketcher.Constraint("Horizontal", 2),
    Sketcher.Constraint("Horizontal", 6),
    Sketcher.Constraint("Vertical", 7),
    Sketcher.Constraint("Horizontal", 8),
    Sketcher.Constraint("Vertical", 10),
    Sketcher.Constraint("Equal", 3, 5),
    Sketcher.Constraint("Equal", 9, 11),
    Sketcher.Constraint("Vertical", 3, 3, 5, 3),
    Sketcher.Constraint("Vertical", 1, 2, 6, 2),
    Sketcher.Constraint("Equal", 1, 7),
    Sketcher.Constraint("Radius", 3, 1.0),
    Sketcher.Constraint("Radius", 4, 5.0),
    Sketcher.Constraint("Radius", 9, 0.4),
    Sketcher.Constraint("DistanceX", 0, 2, 0, 1, 5.7),
    Sketcher.Constraint("DistanceY", 1, 1, 1, 2, 0.5),
    Sketcher.Constraint("DistanceY", 10, 1, 10, 2, 3.76),
    Sketcher.Constraint("DistanceX", -1, 1, 4, 3, 13.6),
    Sketcher.Constraint("DistanceY", -1, 1, 4, 3, 9.3),
    Sketcher.Constraint("DistanceX", 2, 1, 2, 2, 12.632),
])
pad3 = body.newObject("PartDesign::Pad", "Pad002")
pad3.Profile = sketch11
pad3.Length = 1.1

sketch12 = body.newObject("Sketcher::SketchObject", "Sketch011")
sketch12.AttachmentSupport = (doc.getObject("XZ_Plane"), [""])
sketch12.MapMode = "FlatFace"
sketch12.AttachmentOffset = App.Placement(App.Vector(0, 0, -8.15), App.Rotation())
sketch12.addGeometry([
    Part.LineSegment(App.Vector(10.25, 17.18, 0), App.Vector(4.55, 17.18, 0)),
    Part.LineSegment(App.Vector(4.55, 17.18, 0), App.Vector(4.55, 17.68, 0)),
    Part.LineSegment(App.Vector(4.55, 17.68, 0), App.Vector(17.18, 17.68, 0)),
    Part.ArcOfCircle(Part.Circle(App.Vector(17.18, 16.68, 0), App.Vector(0, 0, 1), 1), math.radians(26), math.radians(90)),
    Part.ArcOfCircle(Part.Circle(App.Vector(13.6, 14.9, 0), App.Vector(0, 0, 1), 5), math.radians(-26), math.radians(26)),
    Part.ArcOfCircle(Part.Circle(App.Vector(17.18, 13.12, 0), App.Vector(0, 0, 1), 1), math.radians(-90), math.radians(-26)),
    Part.LineSegment(App.Vector(17.18, 12.12, 0), App.Vector(4.55, 12.12, 0)),
    Part.LineSegment(App.Vector(4.55, 12.12, 0), App.Vector(4.55, 12.62, 0)),
    Part.LineSegment(App.Vector(4.55, 12.62, 0), App.Vector(10.25, 12.62, 0)),
    Part.ArcOfCircle(Part.Circle(App.Vector(10.25, 13.02, 0), App.Vector(0, 0, 1), 0.4), math.radians(-90), math.radians(0)),
    Part.LineSegment(App.Vector(10.65, 13.02, 0), App.Vector(10.65, 16.78, 0)),
    Part.ArcOfCircle(Part.Circle(App.Vector(10.25, 16.78, 0), App.Vector(0, 0, 1), 0.4), math.radians(0), math.radians(90)),
], False)
sketch12.addConstraint([
    Sketcher.Constraint("Coincident", 0, 2, 1, 1),
    Sketcher.Constraint("Coincident", 1, 2, 2, 1),
    Sketcher.Constraint("Tangent", 2, 2, 3, 2),
    Sketcher.Constraint("Tangent", 3, 1, 4, 2),
    Sketcher.Constraint("Tangent", 4, 1, 5, 2),
    Sketcher.Constraint("Tangent", 5, 1, 6, 1),
    Sketcher.Constraint("Coincident", 6, 2, 7, 1),
    Sketcher.Constraint("Coincident", 7, 2, 8, 1),
    Sketcher.Constraint("Tangent", 8, 2, 9, 1),
    Sketcher.Constraint("Tangent", 9, 2, 10, 1),
    Sketcher.Constraint("Tangent", 10, 2, 11, 1),
    Sketcher.Constraint("Tangent", 11, 2, 0, 1),
    Sketcher.Constraint("Horizontal", 0),
    Sketcher.Constraint("Vertical", 1),
    Sketcher.Constraint("Horizontal", 2),
    Sketcher.Constraint("Horizontal", 6),
    Sketcher.Constraint("Vertical", 7),
    Sketcher.Constraint("Horizontal", 8),
    Sketcher.Constraint("Vertical", 10),
    Sketcher.Constraint("Equal", 3, 5),
    Sketcher.Constraint("Equal", 9, 11),
    Sketcher.Constraint("Vertical", 3, 3, 5, 3),
    Sketcher.Constraint("Vertical", 1, 2, 6, 2),
    Sketcher.Constraint("Equal", 1, 7),
    Sketcher.Constraint("Radius", 3, 1.0),
    Sketcher.Constraint("Radius", 4, 5.0),
    Sketcher.Constraint("Radius", 9, 0.4),
    Sketcher.Constraint("DistanceX", 0, 2, 0, 1, 5.7),
    Sketcher.Constraint("DistanceY", 1, 1, 1, 2, 0.5),
    Sketcher.Constraint("DistanceY", 10, 1, 10, 2, 3.76),
    Sketcher.Constraint("DistanceX", -1, 1, 4, 3, 13.6),
    Sketcher.Constraint("DistanceY", -1, 1, 4, 3, 14.9),
    Sketcher.Constraint("DistanceX", 2, 1, 2, 2, 12.632),
])
pad4 = body.newObject("PartDesign::Pad", "Pad003")
pad4.Profile = sketch12
pad4.Length = 1.1

sketch13 = body.newObject("Sketcher::SketchObject", "Sketch012")
sketch13.AttachmentSupport = (doc.getObject("YZ_Plane"), [""])
sketch13.MapMode = "FlatFace"
sketch13.AttachmentOffset = App.Placement(App.Vector(0, 0, 3.62), App.Rotation())
sketch13.addGeometry([
    Part.LineSegment(App.Vector(8.15, 4.86, 0), App.Vector(8, 4.86, 0)),
    Part.ArcOfCircle(Part.Circle(App.Vector(8, 4.26, 0), App.Vector(0, 0, 1), 0.6), math.radians(90), math.radians(180)),
    Part.LineSegment(App.Vector(7.4, 4.26, 0), App.Vector(7.4, 3.14, 0)),
    Part.ArcOfCircle(Part.Circle(App.Vector(8, 3.14, 0), App.Vector(0, 0, 1), 0.6), math.radians(180), math.radians(270)),
    Part.LineSegment(App.Vector(8, 2.54, 0), App.Vector(8.15, 2.54, 0)),
    Part.LineSegment(App.Vector(8.15, 2.54, 0), App.Vector(8.15, 4.86, 0)),
], False)
sketch13.addConstraint([
    Sketcher.Constraint("Tangent", 0, 2, 1, 1),
    Sketcher.Constraint("Tangent", 1, 2, 2, 1),
    Sketcher.Constraint("Tangent", 2, 2, 3, 1),
    Sketcher.Constraint("Tangent", 3, 2, 4, 1),
    Sketcher.Constraint("Coincident", 4, 2, 5, 1),
    Sketcher.Constraint("Coincident", 5, 2, 0, 1),
    Sketcher.Constraint("Horizontal", 0),
    Sketcher.Constraint("Vertical", 2),
    Sketcher.Constraint("Horizontal", 4),
    Sketcher.Constraint("Vertical", 5),
    Sketcher.Constraint("Equal", 1, 3),
    Sketcher.Constraint("Radius", 1, 0.6),
    Sketcher.Constraint("DistanceX", -1, 1, 1, 3, 8.0),
    Sketcher.Constraint("DistanceX", 0, 2, 0, 1, 0.15),
    Sketcher.Constraint("DistanceY", 2, 2, 2, 1, 1.12),
    Sketcher.Constraint("DistanceY", -1, 1, 1, 3, 4.26),
])
pocket9 = body.newObject("PartDesign::Pocket", "Pocket008")
pocket9.Profile = sketch13
pocket9.Length = 5.2
pocket9.Reversed = True

sketch14 = body.newObject("Sketcher::SketchObject", "Sketch013")
sketch14.AttachmentSupport = (doc.getObject("YZ_Plane"), [""])
sketch14.MapMode = "FlatFace"
sketch14.AttachmentOffset = App.Placement(App.Vector(0, 0, 3.62), App.Rotation())
sketch14.addGeometry([
    Part.LineSegment(App.Vector(8.15, 10.46, 0), App.Vector(8, 10.46, 0)),
    Part.ArcOfCircle(Part.Circle(App.Vector(8, 9.86, 0), App.Vector(0, 0, 1), 0.6), math.radians(90), math.radians(180)),
    Part.LineSegment(App.Vector(7.4, 9.86, 0), App.Vector(7.4, 8.74, 0)),
    Part.ArcOfCircle(Part.Circle(App.Vector(8, 8.74, 0), App.Vector(0, 0, 1), 0.6), math.radians(180), math.radians(270)),
    Part.LineSegment(App.Vector(8, 8.14, 0), App.Vector(8.15, 8.14, 0)),
    Part.LineSegment(App.Vector(8.15, 8.14, 0), App.Vector(8.15, 10.46, 0)),
], False)
sketch14.addConstraint([
    Sketcher.Constraint("Tangent", 0, 2, 1, 1),
    Sketcher.Constraint("Tangent", 1, 2, 2, 1),
    Sketcher.Constraint("Tangent", 2, 2, 3, 1),
    Sketcher.Constraint("Tangent", 3, 2, 4, 1),
    Sketcher.Constraint("Coincident", 4, 2, 5, 1),
    Sketcher.Constraint("Coincident", 5, 2, 0, 1),
    Sketcher.Constraint("Horizontal", 0),
    Sketcher.Constraint("Vertical", 2),
    Sketcher.Constraint("Horizontal", 4),
    Sketcher.Constraint("Vertical", 5),
    Sketcher.Constraint("Equal", 1, 3),
    Sketcher.Constraint("Radius", 1, 0.6),
    Sketcher.Constraint("DistanceX", -1, 1, 1, 3, 8.0),
    Sketcher.Constraint("DistanceX", 0, 2, 0, 1, 0.15),
    Sketcher.Constraint("DistanceY", 2, 2, 2, 1, 1.12),
    Sketcher.Constraint("DistanceY", -1, 1, 1, 3, 9.86),
])
pocket10 = body.newObject("PartDesign::Pocket", "Pocket009")
pocket10.Profile = sketch14
pocket10.Length = 5.2
pocket10.Reversed = True

sketch15 = body.newObject("Sketcher::SketchObject", "Sketch014")
sketch15.AttachmentSupport = (doc.getObject("YZ_Plane"), [""])
sketch15.MapMode = "FlatFace"
sketch15.AttachmentOffset = App.Placement(App.Vector(0, 0, 3.62), App.Rotation())
sketch15.addGeometry([
    Part.LineSegment(App.Vector(8.15, 16.06, 0), App.Vector(8, 16.06, 0)),
    Part.ArcOfCircle(Part.Circle(App.Vector(8, 15.46, 0), App.Vector(0, 0, 1), 0.6), math.radians(90), math.radians(180)),
    Part.LineSegment(App.Vector(7.4, 15.46, 0), App.Vector(7.4, 14.34, 0)),
    Part.ArcOfCircle(Part.Circle(App.Vector(8, 14.34, 0), App.Vector(0, 0, 1), 0.6), math.radians(180), math.radians(270)),
    Part.LineSegment(App.Vector(8, 13.74, 0), App.Vector(8.15, 13.74, 0)),
    Part.LineSegment(App.Vector(8.15, 13.74, 0), App.Vector(8.15, 16.06, 0)),
], False)
sketch15.addConstraint([
    Sketcher.Constraint("Tangent", 0, 2, 1, 1),
    Sketcher.Constraint("Tangent", 1, 2, 2, 1),
    Sketcher.Constraint("Tangent", 2, 2, 3, 1),
    Sketcher.Constraint("Tangent", 3, 2, 4, 1),
    Sketcher.Constraint("Coincident", 4, 2, 5, 1),
    Sketcher.Constraint("Coincident", 5, 2, 0, 1),
    Sketcher.Constraint("Horizontal", 0),
    Sketcher.Constraint("Vertical", 2),
    Sketcher.Constraint("Horizontal", 4),
    Sketcher.Constraint("Vertical", 5),
    Sketcher.Constraint("Equal", 1, 3),
    Sketcher.Constraint("Radius", 1, 0.6),
    Sketcher.Constraint("DistanceX", -1, 1, 1, 3, 8.0),
    Sketcher.Constraint("DistanceX", 0, 2, 0, 1, 0.15),
    Sketcher.Constraint("DistanceY", 2, 2, 2, 1, 1.12),
    Sketcher.Constraint("DistanceY", -1, 1, 1, 3, 15.46),
])
pocket11 = body.newObject("PartDesign::Pocket", "Pocket010")
pocket11.Profile = sketch15
pocket11.Length = 5.2
pocket11.Reversed = True

sketch16 = body.newObject("Sketcher::SketchObject", "Sketch015")
sketch16.AttachmentSupport = (doc.getObject("XY_Plane"), [""])
sketch16.MapMode = "FlatFace"
sketch16.AttachmentOffset = App.Placement(App.Vector(0, 0, 0.9), App.Rotation())
add_polygon(sketch16, [(3.6, 8.2), (3.6, 7), (4.5, 7), (4.5, 8.2)])
sketch16.addConstraint([
    Sketcher.Constraint("Vertical", 0),
    Sketcher.Constraint("Horizontal", 1),
    Sketcher.Constraint("Vertical", 2),
    Sketcher.Constraint("Horizontal", 3),
    Sketcher.Constraint("DistanceY", -1, 1, 0, 2, 7.0),
    Sketcher.Constraint("DistanceX", 1, 1, 1, 2, 0.93),
    Sketcher.Constraint("DistanceY", 0, 2, 0, 1, 1.15),
    Sketcher.Constraint("DistanceX", -1, 1, 0, 2, 3.62),
])
pocket12 = body.newObject("PartDesign::Pocket", "Pocket011")
pocket12.Profile = sketch16
pocket12.Length = 16.8
pocket12.Reversed = True

doc.recompute()
